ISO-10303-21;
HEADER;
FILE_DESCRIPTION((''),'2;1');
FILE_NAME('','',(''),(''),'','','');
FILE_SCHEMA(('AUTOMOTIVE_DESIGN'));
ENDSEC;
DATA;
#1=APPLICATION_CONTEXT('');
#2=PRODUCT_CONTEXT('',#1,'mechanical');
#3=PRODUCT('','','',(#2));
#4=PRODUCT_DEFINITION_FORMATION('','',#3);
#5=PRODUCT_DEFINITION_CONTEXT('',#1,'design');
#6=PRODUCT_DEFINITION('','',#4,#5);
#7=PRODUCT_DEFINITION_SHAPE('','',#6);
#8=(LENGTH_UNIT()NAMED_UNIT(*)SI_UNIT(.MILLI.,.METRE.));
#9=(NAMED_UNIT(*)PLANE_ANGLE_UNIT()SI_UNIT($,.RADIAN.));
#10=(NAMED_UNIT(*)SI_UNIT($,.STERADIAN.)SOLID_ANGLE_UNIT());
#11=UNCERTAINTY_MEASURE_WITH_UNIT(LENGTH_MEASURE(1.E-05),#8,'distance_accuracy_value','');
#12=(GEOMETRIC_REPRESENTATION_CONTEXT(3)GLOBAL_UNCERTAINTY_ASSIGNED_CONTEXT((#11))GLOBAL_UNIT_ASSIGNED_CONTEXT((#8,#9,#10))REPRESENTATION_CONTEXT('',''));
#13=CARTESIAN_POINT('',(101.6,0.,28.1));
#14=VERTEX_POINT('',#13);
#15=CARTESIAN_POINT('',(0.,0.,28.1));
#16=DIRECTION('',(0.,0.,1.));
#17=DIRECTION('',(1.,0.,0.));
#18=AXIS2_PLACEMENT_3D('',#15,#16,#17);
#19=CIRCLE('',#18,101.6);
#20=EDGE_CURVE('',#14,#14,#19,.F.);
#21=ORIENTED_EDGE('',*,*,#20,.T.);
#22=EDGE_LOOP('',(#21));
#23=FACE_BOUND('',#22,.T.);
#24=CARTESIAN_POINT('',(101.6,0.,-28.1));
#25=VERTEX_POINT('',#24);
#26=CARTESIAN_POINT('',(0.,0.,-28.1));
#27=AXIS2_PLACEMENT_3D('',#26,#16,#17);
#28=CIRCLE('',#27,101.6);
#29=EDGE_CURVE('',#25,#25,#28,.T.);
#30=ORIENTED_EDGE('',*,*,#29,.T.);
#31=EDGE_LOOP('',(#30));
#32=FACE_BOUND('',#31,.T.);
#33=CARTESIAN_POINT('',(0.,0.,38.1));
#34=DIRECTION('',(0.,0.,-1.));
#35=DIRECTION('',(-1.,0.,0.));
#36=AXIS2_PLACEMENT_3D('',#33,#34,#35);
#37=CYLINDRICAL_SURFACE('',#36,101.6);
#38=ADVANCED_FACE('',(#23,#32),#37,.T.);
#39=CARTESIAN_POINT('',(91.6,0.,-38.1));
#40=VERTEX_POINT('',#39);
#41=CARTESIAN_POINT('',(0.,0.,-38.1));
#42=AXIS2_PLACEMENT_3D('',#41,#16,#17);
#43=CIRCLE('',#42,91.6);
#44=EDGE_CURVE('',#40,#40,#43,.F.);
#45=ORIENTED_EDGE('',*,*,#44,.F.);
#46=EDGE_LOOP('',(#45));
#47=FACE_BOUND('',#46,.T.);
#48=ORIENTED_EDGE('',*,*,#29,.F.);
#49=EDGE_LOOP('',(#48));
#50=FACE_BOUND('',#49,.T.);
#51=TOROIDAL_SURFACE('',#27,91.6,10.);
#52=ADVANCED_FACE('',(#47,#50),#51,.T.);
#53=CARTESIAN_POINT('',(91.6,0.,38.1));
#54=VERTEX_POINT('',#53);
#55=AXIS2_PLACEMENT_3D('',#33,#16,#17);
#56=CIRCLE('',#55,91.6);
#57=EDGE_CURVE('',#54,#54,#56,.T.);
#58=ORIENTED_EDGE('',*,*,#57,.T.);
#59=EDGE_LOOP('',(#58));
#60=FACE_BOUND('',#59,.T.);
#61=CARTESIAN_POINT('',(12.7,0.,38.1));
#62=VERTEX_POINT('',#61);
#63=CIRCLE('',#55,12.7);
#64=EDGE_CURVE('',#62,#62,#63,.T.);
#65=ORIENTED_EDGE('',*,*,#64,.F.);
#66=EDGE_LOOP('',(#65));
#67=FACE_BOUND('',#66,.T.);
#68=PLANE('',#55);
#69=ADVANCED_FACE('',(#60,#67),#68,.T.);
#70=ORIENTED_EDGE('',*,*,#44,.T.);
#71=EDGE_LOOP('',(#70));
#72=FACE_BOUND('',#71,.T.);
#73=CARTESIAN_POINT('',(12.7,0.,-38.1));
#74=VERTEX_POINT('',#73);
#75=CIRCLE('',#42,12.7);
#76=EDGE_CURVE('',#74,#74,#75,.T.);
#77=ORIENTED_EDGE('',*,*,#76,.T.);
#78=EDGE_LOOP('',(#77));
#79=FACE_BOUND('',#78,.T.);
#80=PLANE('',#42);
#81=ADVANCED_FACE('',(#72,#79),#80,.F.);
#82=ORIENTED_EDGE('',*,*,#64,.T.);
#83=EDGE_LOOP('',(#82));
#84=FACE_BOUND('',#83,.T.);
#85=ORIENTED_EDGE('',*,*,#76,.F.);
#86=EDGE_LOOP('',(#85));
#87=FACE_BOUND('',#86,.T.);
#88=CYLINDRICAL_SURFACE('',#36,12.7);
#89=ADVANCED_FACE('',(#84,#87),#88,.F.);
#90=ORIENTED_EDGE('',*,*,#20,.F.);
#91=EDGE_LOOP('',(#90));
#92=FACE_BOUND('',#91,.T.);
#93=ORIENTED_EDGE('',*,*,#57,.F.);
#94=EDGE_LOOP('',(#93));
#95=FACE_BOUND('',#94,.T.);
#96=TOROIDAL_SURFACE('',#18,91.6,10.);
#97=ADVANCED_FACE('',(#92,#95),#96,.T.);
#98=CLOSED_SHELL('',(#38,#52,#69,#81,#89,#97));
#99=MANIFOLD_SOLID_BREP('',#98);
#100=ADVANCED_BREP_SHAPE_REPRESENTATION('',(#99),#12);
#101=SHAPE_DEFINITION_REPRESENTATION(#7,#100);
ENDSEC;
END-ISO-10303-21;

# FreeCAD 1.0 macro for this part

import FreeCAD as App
import Part
import Sketcher

V = App.Vector
Q = App.Units.Quantity


def edges_at(feature, points):
    """Names of the edges that pass closest to the given points."""
    edges = feature.Shape.Edges
    near = lambda p: min(range(len(edges)), key=lambda i: edges[i].distToShape(Part.Vertex(*p))[0])
    return sorted({f"Edge{near(p) + 1}" for p in points})

doc = App.newDocument("Part")
body = doc.addObject("PartDesign::Body", "Body")

sketch1 = body.newObject("Sketcher::SketchObject", "Sketch")
sketch1.AttachmentSupport = (doc.getObject("XY_Plane"), [""])
sketch1.MapMode = "FlatFace"
sketch1.addGeometry(Part.Circle(V(0, 0, 0), V(0, 0, 1), 101.6), False)
sketch1.addGeometry(Part.Circle(V(0, 0, 0), V(0, 0, 1), 12.7), False)
sketch1.addConstraint(Sketcher.Constraint("Coincident", 0, 3, -1, 1))
sketch1.addConstraint(Sketcher.Constraint("Coincident", 1, 3, -1, 1))
sketch1.addConstraint(Sketcher.Constraint("Diameter", 0, Q("8 in")))
sketch1.addConstraint(Sketcher.Constraint("Diameter", 1, Q("1 in")))
pad1 = body.newObject("PartDesign::Pad", "Pad")
pad1.Profile = sketch1
pad1.Length = Q("3 in")
pad1.Midplane = True
doc.recompute()

fillet = body.newObject("PartDesign::Fillet", "Fillet")
fillet.Base = (pad1, edges_at(pad1, [(-101.6, 0, -38.1), (-101.6, 0, 38.1)]))
fillet.Radius = 10

doc.recompute()
